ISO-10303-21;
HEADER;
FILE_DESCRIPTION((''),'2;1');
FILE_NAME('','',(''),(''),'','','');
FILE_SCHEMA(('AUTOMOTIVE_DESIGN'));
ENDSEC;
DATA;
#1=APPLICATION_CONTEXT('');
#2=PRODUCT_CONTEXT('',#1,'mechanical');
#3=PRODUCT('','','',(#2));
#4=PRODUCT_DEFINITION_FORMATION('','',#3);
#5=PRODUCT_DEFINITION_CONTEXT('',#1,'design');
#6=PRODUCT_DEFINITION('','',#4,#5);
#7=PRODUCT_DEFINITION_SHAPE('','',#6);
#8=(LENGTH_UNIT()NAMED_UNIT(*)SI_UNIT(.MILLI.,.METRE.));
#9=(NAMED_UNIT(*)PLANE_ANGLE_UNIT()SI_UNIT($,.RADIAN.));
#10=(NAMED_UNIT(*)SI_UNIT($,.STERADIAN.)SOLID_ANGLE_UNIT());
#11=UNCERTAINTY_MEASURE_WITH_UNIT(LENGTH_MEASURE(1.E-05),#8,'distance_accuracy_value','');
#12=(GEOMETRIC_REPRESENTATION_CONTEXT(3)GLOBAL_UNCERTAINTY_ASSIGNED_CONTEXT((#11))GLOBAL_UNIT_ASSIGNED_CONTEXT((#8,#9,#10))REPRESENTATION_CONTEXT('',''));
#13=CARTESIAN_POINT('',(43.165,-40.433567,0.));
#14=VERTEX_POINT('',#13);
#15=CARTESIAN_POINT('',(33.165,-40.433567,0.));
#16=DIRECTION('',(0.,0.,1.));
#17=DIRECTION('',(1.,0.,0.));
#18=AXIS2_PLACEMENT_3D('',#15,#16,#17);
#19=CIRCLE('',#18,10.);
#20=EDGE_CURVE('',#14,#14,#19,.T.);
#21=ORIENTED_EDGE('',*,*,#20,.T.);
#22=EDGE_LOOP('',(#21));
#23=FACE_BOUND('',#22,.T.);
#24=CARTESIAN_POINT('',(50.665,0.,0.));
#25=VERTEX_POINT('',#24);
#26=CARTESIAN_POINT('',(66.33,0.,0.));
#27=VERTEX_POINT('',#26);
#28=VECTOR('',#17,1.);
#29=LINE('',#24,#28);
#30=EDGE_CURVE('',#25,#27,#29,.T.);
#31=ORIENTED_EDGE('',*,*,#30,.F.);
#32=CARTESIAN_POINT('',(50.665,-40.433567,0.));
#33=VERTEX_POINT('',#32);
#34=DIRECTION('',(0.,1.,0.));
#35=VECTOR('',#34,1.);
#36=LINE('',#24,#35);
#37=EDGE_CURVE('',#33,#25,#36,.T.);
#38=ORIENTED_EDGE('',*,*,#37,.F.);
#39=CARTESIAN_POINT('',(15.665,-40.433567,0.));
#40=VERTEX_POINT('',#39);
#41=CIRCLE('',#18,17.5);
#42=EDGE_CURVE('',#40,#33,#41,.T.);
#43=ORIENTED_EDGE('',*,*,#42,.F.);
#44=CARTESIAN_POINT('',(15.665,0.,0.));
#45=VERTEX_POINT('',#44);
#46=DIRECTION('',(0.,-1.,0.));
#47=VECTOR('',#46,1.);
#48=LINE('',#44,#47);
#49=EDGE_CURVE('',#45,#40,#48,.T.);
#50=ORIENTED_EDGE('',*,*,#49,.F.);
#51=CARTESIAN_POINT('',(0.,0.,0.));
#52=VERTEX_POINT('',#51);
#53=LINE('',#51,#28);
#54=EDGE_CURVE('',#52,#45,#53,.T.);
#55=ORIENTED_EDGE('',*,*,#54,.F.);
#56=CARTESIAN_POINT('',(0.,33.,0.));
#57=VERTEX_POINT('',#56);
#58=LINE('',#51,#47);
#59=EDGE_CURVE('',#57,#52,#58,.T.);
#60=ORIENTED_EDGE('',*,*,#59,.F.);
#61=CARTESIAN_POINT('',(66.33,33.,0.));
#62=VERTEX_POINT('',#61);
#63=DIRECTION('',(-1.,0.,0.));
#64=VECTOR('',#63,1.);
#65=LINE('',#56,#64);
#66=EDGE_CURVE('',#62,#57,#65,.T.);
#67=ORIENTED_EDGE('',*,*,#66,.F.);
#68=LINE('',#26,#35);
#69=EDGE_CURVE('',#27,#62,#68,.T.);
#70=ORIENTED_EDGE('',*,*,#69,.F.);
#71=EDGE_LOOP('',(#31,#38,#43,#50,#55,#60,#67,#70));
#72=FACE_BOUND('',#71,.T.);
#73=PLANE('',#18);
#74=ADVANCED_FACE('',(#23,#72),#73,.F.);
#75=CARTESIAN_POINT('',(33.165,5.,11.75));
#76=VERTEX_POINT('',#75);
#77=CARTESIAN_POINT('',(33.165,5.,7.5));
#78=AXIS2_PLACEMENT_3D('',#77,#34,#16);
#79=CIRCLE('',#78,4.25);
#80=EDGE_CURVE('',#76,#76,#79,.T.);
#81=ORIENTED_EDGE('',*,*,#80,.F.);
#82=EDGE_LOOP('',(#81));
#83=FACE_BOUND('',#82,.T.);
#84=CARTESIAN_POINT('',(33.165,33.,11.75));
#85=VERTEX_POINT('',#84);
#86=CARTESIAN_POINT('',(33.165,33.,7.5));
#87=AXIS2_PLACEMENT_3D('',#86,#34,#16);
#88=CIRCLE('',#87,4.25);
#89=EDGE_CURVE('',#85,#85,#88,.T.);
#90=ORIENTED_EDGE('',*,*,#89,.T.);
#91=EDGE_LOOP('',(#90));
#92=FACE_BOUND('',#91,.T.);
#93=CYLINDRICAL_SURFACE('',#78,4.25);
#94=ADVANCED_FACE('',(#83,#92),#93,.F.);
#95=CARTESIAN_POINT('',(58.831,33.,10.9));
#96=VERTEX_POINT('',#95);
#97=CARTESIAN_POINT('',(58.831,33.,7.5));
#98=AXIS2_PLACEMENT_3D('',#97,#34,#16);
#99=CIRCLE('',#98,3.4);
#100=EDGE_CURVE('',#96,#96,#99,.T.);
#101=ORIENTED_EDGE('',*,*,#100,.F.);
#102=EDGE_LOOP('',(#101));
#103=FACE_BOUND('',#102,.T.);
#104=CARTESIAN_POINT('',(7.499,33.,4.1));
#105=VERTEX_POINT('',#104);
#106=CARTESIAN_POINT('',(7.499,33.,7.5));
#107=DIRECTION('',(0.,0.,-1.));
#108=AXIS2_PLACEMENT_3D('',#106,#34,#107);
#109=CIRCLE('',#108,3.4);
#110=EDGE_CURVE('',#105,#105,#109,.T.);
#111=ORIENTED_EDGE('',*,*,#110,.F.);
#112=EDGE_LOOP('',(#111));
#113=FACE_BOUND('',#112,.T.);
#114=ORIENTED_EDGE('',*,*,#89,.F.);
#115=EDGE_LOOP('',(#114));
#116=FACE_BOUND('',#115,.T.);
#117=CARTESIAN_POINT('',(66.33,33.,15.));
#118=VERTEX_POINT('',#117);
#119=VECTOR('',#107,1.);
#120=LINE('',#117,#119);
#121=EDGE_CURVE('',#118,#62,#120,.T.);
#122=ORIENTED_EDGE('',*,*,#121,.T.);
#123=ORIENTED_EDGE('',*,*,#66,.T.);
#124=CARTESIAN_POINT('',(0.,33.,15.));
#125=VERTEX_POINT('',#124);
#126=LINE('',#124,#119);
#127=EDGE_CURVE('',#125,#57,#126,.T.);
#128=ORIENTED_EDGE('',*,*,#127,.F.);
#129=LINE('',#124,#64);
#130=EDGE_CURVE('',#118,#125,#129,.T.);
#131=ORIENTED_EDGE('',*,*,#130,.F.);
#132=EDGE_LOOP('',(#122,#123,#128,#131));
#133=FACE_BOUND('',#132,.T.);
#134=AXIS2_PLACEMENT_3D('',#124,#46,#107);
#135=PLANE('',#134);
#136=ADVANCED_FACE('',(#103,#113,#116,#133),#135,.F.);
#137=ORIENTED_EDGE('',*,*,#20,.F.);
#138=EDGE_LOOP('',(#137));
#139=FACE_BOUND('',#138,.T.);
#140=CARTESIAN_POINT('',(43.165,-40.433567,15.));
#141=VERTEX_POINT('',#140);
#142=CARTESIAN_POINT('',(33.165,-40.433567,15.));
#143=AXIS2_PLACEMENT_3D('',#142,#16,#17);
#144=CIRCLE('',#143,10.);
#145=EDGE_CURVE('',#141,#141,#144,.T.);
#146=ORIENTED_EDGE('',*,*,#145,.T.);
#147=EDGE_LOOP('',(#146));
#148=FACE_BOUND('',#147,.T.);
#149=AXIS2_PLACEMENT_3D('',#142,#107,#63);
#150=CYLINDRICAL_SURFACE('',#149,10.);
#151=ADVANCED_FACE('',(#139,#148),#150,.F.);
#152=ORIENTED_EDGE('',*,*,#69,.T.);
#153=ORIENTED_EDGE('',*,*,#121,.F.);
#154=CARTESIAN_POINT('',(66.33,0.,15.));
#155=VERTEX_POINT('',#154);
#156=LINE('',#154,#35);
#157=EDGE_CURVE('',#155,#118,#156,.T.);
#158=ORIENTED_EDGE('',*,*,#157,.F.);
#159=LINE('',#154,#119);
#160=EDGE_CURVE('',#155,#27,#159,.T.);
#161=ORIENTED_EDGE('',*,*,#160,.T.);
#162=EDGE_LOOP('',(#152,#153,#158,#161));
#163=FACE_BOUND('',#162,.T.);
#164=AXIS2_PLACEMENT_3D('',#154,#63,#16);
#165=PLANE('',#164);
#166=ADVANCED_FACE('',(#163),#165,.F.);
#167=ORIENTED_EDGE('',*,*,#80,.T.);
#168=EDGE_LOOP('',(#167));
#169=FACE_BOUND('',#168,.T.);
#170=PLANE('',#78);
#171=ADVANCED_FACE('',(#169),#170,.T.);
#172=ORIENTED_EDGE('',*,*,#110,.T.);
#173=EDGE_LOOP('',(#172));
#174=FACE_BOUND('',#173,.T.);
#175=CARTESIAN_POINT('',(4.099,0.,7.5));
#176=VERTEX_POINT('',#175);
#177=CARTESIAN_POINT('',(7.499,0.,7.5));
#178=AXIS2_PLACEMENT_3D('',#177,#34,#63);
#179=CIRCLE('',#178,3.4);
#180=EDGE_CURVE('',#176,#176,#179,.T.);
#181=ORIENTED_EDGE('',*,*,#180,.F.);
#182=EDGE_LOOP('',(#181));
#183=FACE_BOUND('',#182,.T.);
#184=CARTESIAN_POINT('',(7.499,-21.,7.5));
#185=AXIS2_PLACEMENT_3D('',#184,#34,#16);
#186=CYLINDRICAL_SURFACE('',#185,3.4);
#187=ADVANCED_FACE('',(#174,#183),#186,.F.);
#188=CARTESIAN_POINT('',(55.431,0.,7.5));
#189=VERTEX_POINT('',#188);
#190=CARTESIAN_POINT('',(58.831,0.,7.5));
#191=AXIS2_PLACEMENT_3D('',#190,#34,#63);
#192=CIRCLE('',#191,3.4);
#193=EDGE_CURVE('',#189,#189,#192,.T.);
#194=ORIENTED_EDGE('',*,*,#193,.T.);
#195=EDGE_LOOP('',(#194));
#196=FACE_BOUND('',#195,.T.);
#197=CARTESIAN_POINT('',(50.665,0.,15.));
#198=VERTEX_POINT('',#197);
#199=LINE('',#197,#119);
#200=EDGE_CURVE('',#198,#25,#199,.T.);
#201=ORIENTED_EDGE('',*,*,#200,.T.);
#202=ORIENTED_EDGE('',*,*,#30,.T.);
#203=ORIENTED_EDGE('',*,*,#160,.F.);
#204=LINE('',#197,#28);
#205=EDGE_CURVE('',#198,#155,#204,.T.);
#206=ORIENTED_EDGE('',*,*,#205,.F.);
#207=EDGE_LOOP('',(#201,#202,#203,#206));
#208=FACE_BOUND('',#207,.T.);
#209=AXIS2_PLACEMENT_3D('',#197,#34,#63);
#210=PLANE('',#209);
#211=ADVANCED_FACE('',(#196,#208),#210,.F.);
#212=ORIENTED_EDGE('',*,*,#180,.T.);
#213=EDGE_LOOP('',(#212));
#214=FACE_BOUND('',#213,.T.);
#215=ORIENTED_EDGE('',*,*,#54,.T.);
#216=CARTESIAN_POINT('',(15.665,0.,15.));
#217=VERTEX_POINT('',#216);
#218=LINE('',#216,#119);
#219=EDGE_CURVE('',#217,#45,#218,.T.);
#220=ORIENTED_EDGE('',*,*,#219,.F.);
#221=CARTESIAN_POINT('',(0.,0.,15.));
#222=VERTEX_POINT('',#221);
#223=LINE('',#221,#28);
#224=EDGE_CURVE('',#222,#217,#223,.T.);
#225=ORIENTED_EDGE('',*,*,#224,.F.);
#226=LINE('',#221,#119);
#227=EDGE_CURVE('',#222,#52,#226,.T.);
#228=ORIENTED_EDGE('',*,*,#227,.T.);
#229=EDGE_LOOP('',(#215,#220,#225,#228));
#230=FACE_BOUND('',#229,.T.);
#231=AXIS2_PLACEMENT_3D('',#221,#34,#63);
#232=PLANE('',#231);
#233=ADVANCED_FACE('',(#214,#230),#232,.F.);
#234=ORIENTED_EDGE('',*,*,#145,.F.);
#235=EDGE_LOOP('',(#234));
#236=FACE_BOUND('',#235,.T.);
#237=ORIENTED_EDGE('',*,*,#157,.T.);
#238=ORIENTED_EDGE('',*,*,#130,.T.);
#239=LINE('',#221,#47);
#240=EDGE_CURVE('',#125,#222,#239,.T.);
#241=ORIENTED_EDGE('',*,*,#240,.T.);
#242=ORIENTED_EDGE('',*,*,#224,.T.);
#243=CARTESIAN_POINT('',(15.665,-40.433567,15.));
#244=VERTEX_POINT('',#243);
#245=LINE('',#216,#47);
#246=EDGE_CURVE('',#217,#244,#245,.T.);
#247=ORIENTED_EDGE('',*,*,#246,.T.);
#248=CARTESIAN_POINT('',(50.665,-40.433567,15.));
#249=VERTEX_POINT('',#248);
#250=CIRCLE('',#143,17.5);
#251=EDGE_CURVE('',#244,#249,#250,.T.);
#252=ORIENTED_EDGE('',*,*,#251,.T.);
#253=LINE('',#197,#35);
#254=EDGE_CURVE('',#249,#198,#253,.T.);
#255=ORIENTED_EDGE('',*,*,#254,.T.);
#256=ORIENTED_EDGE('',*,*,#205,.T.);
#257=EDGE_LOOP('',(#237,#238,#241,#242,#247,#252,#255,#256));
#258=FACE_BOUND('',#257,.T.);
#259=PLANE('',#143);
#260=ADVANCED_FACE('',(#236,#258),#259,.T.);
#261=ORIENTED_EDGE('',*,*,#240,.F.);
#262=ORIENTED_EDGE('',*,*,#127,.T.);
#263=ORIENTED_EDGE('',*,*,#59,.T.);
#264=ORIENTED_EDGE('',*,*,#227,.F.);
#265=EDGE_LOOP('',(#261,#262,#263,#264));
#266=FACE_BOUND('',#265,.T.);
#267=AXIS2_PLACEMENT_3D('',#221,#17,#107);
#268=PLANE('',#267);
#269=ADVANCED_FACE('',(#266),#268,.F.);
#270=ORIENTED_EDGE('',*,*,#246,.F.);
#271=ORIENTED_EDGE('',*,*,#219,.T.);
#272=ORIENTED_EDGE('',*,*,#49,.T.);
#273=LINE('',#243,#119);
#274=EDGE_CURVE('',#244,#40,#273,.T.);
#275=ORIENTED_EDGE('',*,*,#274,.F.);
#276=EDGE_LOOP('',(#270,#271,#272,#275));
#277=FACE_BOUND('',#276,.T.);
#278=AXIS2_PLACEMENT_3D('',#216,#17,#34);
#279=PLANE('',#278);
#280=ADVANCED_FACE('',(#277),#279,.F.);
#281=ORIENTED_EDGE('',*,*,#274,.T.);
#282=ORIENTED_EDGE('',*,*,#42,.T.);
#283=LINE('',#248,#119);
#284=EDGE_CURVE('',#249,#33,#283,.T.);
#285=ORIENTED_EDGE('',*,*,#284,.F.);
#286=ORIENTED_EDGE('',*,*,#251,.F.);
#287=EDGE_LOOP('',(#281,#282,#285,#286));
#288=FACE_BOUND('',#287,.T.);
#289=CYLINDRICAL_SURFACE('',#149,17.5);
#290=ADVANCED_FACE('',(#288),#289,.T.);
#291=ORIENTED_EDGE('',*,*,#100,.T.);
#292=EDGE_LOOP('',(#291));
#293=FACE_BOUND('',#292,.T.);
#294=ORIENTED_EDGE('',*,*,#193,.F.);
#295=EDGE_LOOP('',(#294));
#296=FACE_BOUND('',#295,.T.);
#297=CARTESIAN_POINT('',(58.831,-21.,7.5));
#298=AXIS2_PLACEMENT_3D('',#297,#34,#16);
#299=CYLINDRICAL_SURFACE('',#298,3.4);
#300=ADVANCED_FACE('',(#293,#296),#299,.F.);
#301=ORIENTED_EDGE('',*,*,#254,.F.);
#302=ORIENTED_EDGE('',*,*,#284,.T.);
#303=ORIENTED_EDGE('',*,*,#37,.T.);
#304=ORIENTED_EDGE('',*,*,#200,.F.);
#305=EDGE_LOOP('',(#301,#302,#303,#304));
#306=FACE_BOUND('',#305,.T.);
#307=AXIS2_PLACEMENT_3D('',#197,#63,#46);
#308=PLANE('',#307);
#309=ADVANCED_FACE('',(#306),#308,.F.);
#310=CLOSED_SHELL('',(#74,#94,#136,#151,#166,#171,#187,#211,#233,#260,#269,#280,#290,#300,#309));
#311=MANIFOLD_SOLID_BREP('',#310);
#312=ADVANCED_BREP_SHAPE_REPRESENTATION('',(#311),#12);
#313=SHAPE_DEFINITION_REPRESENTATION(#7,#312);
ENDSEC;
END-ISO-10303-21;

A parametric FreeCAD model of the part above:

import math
import FreeCAD as App
import Part
import Sketcher

V = App.Vector

doc = App.newDocument("Part")
body = doc.addObject("PartDesign::Body", "Body")

# Sketch on XY plane
sketch1 = body.newObject("Sketcher::SketchObject", "Sketch")
sketch1.AttachmentSupport = (doc.getObject("XY_Plane"), [""])
sketch1.MapMode = "FlatFace"
sketch1.addGeometry([
    Part.LineSegment(V(0, 33, 0), V(0, 0, 0)),  # 0
    Part.LineSegment(V(0, 0, 0), V(15.665, 0, 0)),  # 1
    Part.LineSegment(V(15.665, 0, 0), V(15.665, -40.433567, 0)),  # 2
    Part.ArcOfCircle(Part.Circle(V(33.165, -40.433567, 0), V(0, 0, 1), 17.5), math.radians(180), math.radians(360)),  # 3
    Part.LineSegment(V(50.665, -40.433567, 0), V(50.665, 0, 0)),  # 4
    Part.LineSegment(V(50.665, 0, 0), V(66.33, 0, 0)),  # 5
    Part.LineSegment(V(66.33, 0, 0), V(66.33, 33, 0)),  # 6
    Part.LineSegment(V(66.33, 33, 0), V(0, 33, 0)),  # 7
    Part.Circle(V(33.165, -40.433567, 0), V(0, 0, 1), 10),  # 8
], False)
sketch1.addConstraint([
    Sketcher.Constraint("Coincident", 0, 2, 1, 1),
    Sketcher.Constraint("Coincident", 1, 2, 2, 1),
    Sketcher.Constraint("Tangent", 2, 2, 3, 1),
    Sketcher.Constraint("Tangent", 3, 2, 4, 1),
    Sketcher.Constraint("Coincident", 4, 2, 5, 1),
    Sketcher.Constraint("Coincident", 5, 2, 6, 1),
    Sketcher.Constraint("Coincident", 6, 2, 7, 1),
    Sketcher.Constraint("Coincident", 7, 2, 0, 1),
    Sketcher.Constraint("Vertical", 0),
    Sketcher.Constraint("Horizontal", 1),
    Sketcher.Constraint("Vertical", 2),
    Sketcher.Constraint("Vertical", 4),
    Sketcher.Constraint("Horizontal", 5),
    Sketcher.Constraint("Vertical", 6),
    Sketcher.Constraint("Horizontal", 7),
    Sketcher.Constraint("Coincident", 0, 2, -1, 1),
    Sketcher.Constraint("Coincident", 8, 3, 3, 3),
    Sketcher.Constraint("PointOnObject", 4, 2, -1),
    Sketcher.Constraint("Equal", 1, 5),
    Sketcher.Constraint("Diameter", 8, 20.0),
    Sketcher.Constraint("Radius", 3, 17.5),
    Sketcher.Constraint("DistanceY", 0, 2, 0, 1, 33.0),
    Sketcher.Constraint("DistanceX", 7, 2, 7, 1, 66.33),
    Sketcher.Constraint("DistanceY", 2, 2, 2, 1, 40.433567),
])
pad1 = body.newObject("PartDesign::Pad", "Pad")
pad1.Profile = sketch1
pad1.Length = 15

# Sketch on XZ plane
sketch2 = body.newObject("Sketcher::SketchObject", "Sketch001")
sketch2.AttachmentSupport = (doc.getObject("XZ_Plane"), [""])
sketch2.MapMode = "FlatFace"
sketch2.AttachmentOffset = App.Placement(V(0, 0, -33), App.Rotation())
sketch2.addGeometry([
    Part.Circle(V(58.831, 7.5, 0), V(0, 0, 1), 3.4),
    Part.Circle(V(7.499, 7.5, 0), V(0, 0, 1), 3.4),
], False)
sketch2.addConstraint([
    Sketcher.Constraint("Equal", 0, 1),
    Sketcher.Constraint("Horizontal", 0, 3, 1, 3),
    Sketcher.Constraint("Diameter", 0, 6.8),
    Sketcher.Constraint("DistanceY", -1, 1, 0, 3, 7.5),
    Sketcher.Constraint("DistanceX", -1, 1, 0, 3, 58.831),
    Sketcher.Constraint("DistanceX", -1, 1, 1, 3, 7.499),
])
pocket1 = body.newObject("PartDesign::Pocket", "Pocket")
pocket1.Profile = sketch2
pocket1.Length = 54
pocket1.Reversed = True

# Sketch on XZ plane
sketch3 = body.newObject("Sketcher::SketchObject", "Sketch002")
sketch3.AttachmentSupport = (doc.getObject("XZ_Plane"), [""])
sketch3.MapMode = "FlatFace"
sketch3.AttachmentOffset = App.Placement(V(0, 0, -33), App.Rotation())
sketch3.addGeometry(Part.Circle(V(33.165, 7.5, 0), V(0, 0, 1), 4.25), False)
sketch3.addConstraint([
    Sketcher.Constraint("Diameter", 0, 8.5),
    Sketcher.Constraint("DistanceY", -1, 1, 0, 3, 7.5),
    Sketcher.Constraint("DistanceX", -1, 1, 0, 3, 33.165),
])
pocket2 = body.newObject("PartDesign::Pocket", "Pocket001")
pocket2.Profile = sketch3
pocket2.Length = 28
pocket2.Reversed = True

doc.recompute()
